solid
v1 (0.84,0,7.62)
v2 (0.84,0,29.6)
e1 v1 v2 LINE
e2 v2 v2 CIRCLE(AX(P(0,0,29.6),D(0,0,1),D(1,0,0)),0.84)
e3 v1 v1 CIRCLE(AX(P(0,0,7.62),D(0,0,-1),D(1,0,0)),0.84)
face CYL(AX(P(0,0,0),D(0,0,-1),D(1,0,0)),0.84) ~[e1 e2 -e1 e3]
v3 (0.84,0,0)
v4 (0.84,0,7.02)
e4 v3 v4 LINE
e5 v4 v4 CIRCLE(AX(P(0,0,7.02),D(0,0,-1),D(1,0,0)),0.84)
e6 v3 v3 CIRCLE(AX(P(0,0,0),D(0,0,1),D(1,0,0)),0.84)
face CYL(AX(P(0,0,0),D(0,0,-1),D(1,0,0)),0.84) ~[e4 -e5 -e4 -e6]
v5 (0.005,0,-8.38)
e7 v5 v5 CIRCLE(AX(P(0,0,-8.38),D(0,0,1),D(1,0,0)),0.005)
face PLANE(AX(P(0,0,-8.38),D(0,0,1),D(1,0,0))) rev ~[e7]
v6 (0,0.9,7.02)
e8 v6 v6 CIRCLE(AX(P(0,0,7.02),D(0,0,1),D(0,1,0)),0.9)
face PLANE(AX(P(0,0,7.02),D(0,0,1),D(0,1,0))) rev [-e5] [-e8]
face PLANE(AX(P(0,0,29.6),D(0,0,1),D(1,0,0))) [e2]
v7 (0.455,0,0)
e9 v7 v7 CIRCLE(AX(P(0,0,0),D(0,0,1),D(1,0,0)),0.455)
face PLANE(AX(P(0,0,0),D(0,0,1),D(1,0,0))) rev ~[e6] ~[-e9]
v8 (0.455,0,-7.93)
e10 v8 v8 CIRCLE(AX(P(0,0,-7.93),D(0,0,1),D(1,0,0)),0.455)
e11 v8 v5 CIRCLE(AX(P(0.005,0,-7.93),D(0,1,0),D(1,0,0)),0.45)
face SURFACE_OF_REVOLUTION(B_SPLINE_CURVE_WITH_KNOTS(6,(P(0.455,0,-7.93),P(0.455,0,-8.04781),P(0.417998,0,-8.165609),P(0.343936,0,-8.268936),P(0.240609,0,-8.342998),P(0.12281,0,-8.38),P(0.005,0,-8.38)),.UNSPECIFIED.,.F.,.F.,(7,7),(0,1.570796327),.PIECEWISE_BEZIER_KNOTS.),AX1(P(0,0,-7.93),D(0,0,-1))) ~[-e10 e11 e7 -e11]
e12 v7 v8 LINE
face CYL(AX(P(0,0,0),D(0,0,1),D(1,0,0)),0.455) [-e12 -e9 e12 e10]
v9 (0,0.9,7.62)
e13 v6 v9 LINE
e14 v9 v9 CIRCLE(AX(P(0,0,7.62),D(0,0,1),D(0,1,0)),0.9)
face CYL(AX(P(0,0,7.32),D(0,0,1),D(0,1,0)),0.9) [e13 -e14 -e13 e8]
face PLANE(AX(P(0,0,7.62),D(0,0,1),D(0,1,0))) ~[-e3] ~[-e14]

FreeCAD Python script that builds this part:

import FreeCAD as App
import Part
import Sketcher

V = App.Vector
Q = App.Units.Quantity


def edges_at(feature, points):
    """Names of the edges that pass closest to the given points."""
    edges = feature.Shape.Edges
    near = lambda p: min(range(len(edges)), key=lambda i: edges[i].distToShape(Part.Vertex(*p))[0])
    return sorted({f"Edge{near(p) + 1}" for p in points})

doc = App.newDocument("Part")
params = doc.addObject("Spreadsheet::Sheet", "Params")
for row, (alias, value) in enumerate([
    ("sketch1_diameter", "1.68 mm"),
    ("pad1_length", "29.6 mm"),
    ("sketch2_width", "0.9 mm"),
    ("sketch2_height", "0.6 mm"),
    ("revolution_angle", "360 deg"),
    ("sketch3_diameter", "0.91 mm"),
    ("pad2_length", "8.38 mm"),
    ("fillet_radius", "0.45 mm"),
], start=1):
    params.set(f"A{row}", alias)
    params.set(f"B{row}", "=" + value)
    params.setAlias(f"B{row}", alias)

body = doc.addObject("PartDesign::Body", "Body")

# Sketch on XY plane
sketch1 = body.newObject("Sketcher::SketchObject", "Sketch")
sketch1.AttachmentSupport = (doc.getObject("XY_Plane"), [""])
sketch1.MapMode = "FlatFace"
sketch1.addGeometry(Part.Circle(V(0, 0, 0), V(0, 0, 1), 0.84), False)
sketch1.addConstraint([
    Sketcher.Constraint("Coincident", 0, 3, -1, 1),
    Sketcher.Constraint("Diameter", 0, Q("1.68 mm")),
])
sketch1.setExpression("Constraints[1]", "Params.sketch1_diameter")
pad1 = body.newObject("PartDesign::Pad", "Pad")
pad1.Profile = sketch1
pad1.setExpression("Length", "Params.pad1_length")

# Sketch on YZ plane
sketch2 = body.newObject("Sketcher::SketchObject", "Sketch001")
sketch2.AttachmentSupport = (doc.getObject("YZ_Plane"), [""])
sketch2.MapMode = "FlatFace"
sketch2.addGeometry([
    Part.LineSegment(V(0, 7.62, 0), V(0, 7.02, 0)),
    Part.LineSegment(V(0, 7.02, 0), V(0.9, 7.02, 0)),
    Part.LineSegment(V(0.9, 7.02, 0), V(0.9, 7.62, 0)),
    Part.LineSegment(V(0.9, 7.62, 0), V(0, 7.62, 0)),
], False)
sketch2.addConstraint([
    Sketcher.Constraint("Coincident", 0, 2, 1, 1),
    Sketcher.Constraint("Coincident", 1, 2, 2, 1),
    Sketcher.Constraint("Coincident", 2, 2, 3, 1),
    Sketcher.Constraint("Coincident", 3, 2, 0, 1),
    Sketcher.Constraint("Vertical", 0),
    Sketcher.Constraint("Horizontal", 1),
    Sketcher.Constraint("Vertical", 2),
    Sketcher.Constraint("Horizontal", 3),
    Sketcher.Constraint("PointOnObject", 0, 2, -2),
    Sketcher.Constraint("DistanceX", 1, 1, 1, 2, Q("0.9 mm")),
    Sketcher.Constraint("DistanceY", 0, 2, 0, 1, Q("0.6 mm")),
    Sketcher.Constraint("DistanceY", -1, 1, 0, 2, Q("7.02 mm")),
])
sketch2.setExpression("Constraints[9]", "Params.sketch2_width")
sketch2.setExpression("Constraints[10]", "Params.sketch2_height")
revolution = body.newObject("PartDesign::Revolution", "Revolution")
revolution.Profile = sketch2
revolution.ReferenceAxis = (sketch2, ["V_Axis"])
revolution.setExpression("Angle", "Params.revolution_angle")

# Sketch on XY plane
sketch3 = body.newObject("Sketcher::SketchObject", "Sketch002")
sketch3.AttachmentSupport = (doc.getObject("XY_Plane"), [""])
sketch3.MapMode = "FlatFace"
sketch3.addGeometry(Part.Circle(V(0, 0, 0), V(0, 0, 1), 0.455), False)
sketch3.addConstraint([
    Sketcher.Constraint("Coincident", 0, 3, -1, 1),
    Sketcher.Constraint("Diameter", 0, Q("0.91 mm")),
])
sketch3.setExpression("Constraints[1]", "Params.sketch3_diameter")
pad2 = body.newObject("PartDesign::Pad", "Pad001")
pad2.Profile = sketch3
pad2.setExpression("Length", "Params.pad2_length")
pad2.Reversed = True
doc.recompute()

fillet = body.newObject("PartDesign::Fillet", "Fillet")
fillet.Base = (pad2, edges_at(pad2, [(-0.455, 0, -8.38)]))
fillet.setExpression("Radius", "Params.fillet_radius")

doc.recompute()
